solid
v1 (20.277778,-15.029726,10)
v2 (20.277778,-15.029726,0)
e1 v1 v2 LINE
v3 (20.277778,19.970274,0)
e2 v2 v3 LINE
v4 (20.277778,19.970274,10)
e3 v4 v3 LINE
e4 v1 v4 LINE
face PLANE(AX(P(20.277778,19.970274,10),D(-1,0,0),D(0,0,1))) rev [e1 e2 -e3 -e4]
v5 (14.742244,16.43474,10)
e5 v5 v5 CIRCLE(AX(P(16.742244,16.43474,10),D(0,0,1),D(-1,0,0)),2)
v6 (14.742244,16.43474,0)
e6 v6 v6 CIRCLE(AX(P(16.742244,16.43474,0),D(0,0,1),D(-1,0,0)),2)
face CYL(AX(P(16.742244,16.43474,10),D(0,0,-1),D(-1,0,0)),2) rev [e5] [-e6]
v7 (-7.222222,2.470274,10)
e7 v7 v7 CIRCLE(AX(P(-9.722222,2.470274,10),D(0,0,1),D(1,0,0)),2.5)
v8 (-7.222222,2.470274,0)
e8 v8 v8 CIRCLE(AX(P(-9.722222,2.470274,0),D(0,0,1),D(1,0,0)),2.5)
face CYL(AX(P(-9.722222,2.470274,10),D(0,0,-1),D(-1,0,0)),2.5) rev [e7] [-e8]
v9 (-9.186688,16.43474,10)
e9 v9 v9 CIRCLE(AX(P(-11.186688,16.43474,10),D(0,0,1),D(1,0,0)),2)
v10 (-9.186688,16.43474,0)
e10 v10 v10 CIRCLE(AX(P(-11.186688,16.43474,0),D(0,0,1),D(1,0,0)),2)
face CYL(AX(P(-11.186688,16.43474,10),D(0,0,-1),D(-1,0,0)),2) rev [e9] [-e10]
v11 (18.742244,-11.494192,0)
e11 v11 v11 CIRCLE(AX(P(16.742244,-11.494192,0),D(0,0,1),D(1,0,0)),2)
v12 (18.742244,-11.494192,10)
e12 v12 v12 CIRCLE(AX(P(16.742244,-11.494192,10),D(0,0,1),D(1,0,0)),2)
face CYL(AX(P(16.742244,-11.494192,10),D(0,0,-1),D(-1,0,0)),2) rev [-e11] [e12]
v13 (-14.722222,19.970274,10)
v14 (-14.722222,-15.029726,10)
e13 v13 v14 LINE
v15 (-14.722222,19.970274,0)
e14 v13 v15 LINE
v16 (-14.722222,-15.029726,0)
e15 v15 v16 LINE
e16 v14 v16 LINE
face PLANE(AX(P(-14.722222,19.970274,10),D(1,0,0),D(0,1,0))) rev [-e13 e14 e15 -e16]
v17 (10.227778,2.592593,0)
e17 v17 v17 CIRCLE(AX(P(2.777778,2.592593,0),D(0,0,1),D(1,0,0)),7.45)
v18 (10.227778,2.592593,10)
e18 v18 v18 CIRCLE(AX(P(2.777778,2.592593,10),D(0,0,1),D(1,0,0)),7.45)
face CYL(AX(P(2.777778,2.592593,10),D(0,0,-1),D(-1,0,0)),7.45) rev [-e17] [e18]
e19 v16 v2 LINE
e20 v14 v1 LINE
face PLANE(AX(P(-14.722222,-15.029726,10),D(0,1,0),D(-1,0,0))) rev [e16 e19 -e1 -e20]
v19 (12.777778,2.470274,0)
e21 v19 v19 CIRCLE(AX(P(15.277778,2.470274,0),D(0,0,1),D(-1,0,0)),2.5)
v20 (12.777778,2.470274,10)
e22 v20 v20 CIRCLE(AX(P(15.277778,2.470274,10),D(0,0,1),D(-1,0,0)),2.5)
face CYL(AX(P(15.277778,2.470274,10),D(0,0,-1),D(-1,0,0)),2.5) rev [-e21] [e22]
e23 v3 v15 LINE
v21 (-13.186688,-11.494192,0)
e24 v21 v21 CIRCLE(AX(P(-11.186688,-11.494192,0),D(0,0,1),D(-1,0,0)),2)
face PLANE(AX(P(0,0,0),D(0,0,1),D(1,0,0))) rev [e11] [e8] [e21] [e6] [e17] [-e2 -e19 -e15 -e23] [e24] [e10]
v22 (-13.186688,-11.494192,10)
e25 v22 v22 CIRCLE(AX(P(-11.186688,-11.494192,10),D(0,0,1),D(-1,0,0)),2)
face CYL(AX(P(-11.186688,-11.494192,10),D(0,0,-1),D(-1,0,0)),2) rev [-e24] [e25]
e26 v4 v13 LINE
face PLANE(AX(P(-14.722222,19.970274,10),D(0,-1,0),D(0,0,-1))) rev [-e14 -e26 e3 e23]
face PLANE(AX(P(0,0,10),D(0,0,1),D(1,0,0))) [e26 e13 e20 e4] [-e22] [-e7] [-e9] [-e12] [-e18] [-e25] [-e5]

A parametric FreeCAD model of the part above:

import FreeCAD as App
import Part
import Sketcher

V = App.Vector


def add_polygon(sketch, points):
    """Adds a closed chain of lines whose ends are joined by coincident constraints."""
    first, n = sketch.GeometryCount, len(points)
    for a, b in zip(points, points[1:] + points[:1]):
        sketch.addGeometry(Part.LineSegment(App.Vector(*a, 0), App.Vector(*b, 0)), False)
    for i in range(n):
        sketch.addConstraint(Sketcher.Constraint("Coincident", first + i, 2, first + (i + 1) % n, 1))

doc = App.newDocument("Part")
params = doc.addObject("Spreadsheet::Sheet", "Params")
for row, (alias, value) in enumerate([
    ("sketch1_diameter", "4 mm"),
    ("sketch1_diameter2", "5 mm"),
    ("sketch1_diameter3", "14.9 mm"),
    ("sketch1_width", "35 mm"),
    ("pad1_length", "10 mm"),
], start=1):
    params.set(f"A{row}", alias)
    params.set(f"B{row}", "=" + value)
    params.setAlias(f"B{row}", alias)

body = doc.addObject("PartDesign::Body", "Body")

# Sketch on XY plane
sketch1 = doc.addObject("Sketcher::SketchObject", "Sketch")
body.addObject(sketch1)
sketch1.AttachmentSupport = (doc.XY_Plane, [""])
sketch1.MapMode = "FlatFace"
add_polygon(sketch1, [(-14.722222, 19.970274), (-14.722222, -15.029726), (20.277778, -15.029726), (20.277778, 19.970274)])  # lines 0-3
sketch1.addGeometry(Part.Circle(V(-11.186688, -11.494192, 0), V(0, 0, 1), 2), False)  # 4
sketch1.addGeometry(Part.Circle(V(16.742244, -11.494192, 0), V(0, 0, 1), 2), False)  # 5
sketch1.addGeometry(Part.Circle(V(-9.722222, 2.470274, 0), V(0, 0, 1), 2.5), False)  # 6
sketch1.addGeometry(Part.Circle(V(-11.186688, 16.43474, 0), V(0, 0, 1), 2), False)  # 7
sketch1.addGeometry(Part.Circle(V(2.777778, 2.592593, 0), V(0, 0, 1), 7.45), False)  # 8
sketch1.addGeometry(Part.Circle(V(15.277778, 2.470274, 0), V(0, 0, 1), 2.5), False)  # 9
sketch1.addGeometry(Part.Circle(V(16.742244, 16.43474, 0), V(0, 0, 1), 2), False)  # 10
sketch1.addConstraint([
    Sketcher.Constraint("Vertical", 0),
    Sketcher.Constraint("Horizontal", 1),
    Sketcher.Constraint("Vertical", 2),
    Sketcher.Constraint("Horizontal", 3),
    Sketcher.Constraint("Equal", 4, 5),
    Sketcher.Constraint("Equal", 5, 7),
    Sketcher.Constraint("Equal", 6, 9),
    Sketcher.Constraint("Equal", 7, 10),
    Sketcher.Constraint("Horizontal", 4, 3, 5, 3),
    Sketcher.Constraint("Horizontal", 6, 3, 9, 3),
    Sketcher.Constraint("Horizontal", 7, 3, 10, 3),
    Sketcher.Constraint("Vertical", 4, 3, 7, 3),
    Sketcher.Constraint("Vertical", 5, 3, 10, 3),
    Sketcher.Constraint("Equal", 3, 0),
    Sketcher.Constraint("Diameter", 4, 4.0),
    Sketcher.Constraint("Diameter", 6, 5.0),
    Sketcher.Constraint("Diameter", 8, 14.9),
    Sketcher.Constraint("DistanceX", 1, 1, 1, 2, 35.0),
    Sketcher.Constraint("DistanceX", 6, 3, 9, 3, 25.0),
    Sketcher.Constraint("DistanceX", 0, 2, 6, 3, 5.0),
    Sketcher.Constraint("DistanceX", 6, 3, 8, 3, 12.5),
    Sketcher.Constraint("DistanceY", 0, 2, 6, 3, 17.5),
    Sketcher.Constraint("DistanceX", 4, 3, -1, 1, 11.186688),
    Sketcher.Constraint("DistanceY", -1, 1, 7, 3, 16.43474),
    Sketcher.Constraint("DistanceY", 6, 3, 8, 3, 0.122319),
    Sketcher.Constraint("DistanceY", 4, 3, -1, 1, 11.494192),
    Sketcher.Constraint("DistanceX", -1, 1, 5, 3, 16.742244),
    Sketcher.Constraint("DistanceX", 6, 3, -1, 1, 9.722222),
    Sketcher.Constraint("DistanceY", -1, 1, 6, 3, 2.470274),
])
sketch1.setExpression("Constraints[18]", "Params.sketch1_diameter")
sketch1.setExpression("Constraints[19]", "Params.sketch1_diameter2")
sketch1.setExpression("Constraints[20]", "Params.sketch1_diameter3")
sketch1.setExpression("Constraints[21]", "Params.sketch1_width")
pad1 = doc.addObject("PartDesign::Pad", "Pad")
body.addObject(pad1)
pad1.Profile = sketch1
pad1.setExpression("Length", "Params.pad1_length")

doc.recompute()
